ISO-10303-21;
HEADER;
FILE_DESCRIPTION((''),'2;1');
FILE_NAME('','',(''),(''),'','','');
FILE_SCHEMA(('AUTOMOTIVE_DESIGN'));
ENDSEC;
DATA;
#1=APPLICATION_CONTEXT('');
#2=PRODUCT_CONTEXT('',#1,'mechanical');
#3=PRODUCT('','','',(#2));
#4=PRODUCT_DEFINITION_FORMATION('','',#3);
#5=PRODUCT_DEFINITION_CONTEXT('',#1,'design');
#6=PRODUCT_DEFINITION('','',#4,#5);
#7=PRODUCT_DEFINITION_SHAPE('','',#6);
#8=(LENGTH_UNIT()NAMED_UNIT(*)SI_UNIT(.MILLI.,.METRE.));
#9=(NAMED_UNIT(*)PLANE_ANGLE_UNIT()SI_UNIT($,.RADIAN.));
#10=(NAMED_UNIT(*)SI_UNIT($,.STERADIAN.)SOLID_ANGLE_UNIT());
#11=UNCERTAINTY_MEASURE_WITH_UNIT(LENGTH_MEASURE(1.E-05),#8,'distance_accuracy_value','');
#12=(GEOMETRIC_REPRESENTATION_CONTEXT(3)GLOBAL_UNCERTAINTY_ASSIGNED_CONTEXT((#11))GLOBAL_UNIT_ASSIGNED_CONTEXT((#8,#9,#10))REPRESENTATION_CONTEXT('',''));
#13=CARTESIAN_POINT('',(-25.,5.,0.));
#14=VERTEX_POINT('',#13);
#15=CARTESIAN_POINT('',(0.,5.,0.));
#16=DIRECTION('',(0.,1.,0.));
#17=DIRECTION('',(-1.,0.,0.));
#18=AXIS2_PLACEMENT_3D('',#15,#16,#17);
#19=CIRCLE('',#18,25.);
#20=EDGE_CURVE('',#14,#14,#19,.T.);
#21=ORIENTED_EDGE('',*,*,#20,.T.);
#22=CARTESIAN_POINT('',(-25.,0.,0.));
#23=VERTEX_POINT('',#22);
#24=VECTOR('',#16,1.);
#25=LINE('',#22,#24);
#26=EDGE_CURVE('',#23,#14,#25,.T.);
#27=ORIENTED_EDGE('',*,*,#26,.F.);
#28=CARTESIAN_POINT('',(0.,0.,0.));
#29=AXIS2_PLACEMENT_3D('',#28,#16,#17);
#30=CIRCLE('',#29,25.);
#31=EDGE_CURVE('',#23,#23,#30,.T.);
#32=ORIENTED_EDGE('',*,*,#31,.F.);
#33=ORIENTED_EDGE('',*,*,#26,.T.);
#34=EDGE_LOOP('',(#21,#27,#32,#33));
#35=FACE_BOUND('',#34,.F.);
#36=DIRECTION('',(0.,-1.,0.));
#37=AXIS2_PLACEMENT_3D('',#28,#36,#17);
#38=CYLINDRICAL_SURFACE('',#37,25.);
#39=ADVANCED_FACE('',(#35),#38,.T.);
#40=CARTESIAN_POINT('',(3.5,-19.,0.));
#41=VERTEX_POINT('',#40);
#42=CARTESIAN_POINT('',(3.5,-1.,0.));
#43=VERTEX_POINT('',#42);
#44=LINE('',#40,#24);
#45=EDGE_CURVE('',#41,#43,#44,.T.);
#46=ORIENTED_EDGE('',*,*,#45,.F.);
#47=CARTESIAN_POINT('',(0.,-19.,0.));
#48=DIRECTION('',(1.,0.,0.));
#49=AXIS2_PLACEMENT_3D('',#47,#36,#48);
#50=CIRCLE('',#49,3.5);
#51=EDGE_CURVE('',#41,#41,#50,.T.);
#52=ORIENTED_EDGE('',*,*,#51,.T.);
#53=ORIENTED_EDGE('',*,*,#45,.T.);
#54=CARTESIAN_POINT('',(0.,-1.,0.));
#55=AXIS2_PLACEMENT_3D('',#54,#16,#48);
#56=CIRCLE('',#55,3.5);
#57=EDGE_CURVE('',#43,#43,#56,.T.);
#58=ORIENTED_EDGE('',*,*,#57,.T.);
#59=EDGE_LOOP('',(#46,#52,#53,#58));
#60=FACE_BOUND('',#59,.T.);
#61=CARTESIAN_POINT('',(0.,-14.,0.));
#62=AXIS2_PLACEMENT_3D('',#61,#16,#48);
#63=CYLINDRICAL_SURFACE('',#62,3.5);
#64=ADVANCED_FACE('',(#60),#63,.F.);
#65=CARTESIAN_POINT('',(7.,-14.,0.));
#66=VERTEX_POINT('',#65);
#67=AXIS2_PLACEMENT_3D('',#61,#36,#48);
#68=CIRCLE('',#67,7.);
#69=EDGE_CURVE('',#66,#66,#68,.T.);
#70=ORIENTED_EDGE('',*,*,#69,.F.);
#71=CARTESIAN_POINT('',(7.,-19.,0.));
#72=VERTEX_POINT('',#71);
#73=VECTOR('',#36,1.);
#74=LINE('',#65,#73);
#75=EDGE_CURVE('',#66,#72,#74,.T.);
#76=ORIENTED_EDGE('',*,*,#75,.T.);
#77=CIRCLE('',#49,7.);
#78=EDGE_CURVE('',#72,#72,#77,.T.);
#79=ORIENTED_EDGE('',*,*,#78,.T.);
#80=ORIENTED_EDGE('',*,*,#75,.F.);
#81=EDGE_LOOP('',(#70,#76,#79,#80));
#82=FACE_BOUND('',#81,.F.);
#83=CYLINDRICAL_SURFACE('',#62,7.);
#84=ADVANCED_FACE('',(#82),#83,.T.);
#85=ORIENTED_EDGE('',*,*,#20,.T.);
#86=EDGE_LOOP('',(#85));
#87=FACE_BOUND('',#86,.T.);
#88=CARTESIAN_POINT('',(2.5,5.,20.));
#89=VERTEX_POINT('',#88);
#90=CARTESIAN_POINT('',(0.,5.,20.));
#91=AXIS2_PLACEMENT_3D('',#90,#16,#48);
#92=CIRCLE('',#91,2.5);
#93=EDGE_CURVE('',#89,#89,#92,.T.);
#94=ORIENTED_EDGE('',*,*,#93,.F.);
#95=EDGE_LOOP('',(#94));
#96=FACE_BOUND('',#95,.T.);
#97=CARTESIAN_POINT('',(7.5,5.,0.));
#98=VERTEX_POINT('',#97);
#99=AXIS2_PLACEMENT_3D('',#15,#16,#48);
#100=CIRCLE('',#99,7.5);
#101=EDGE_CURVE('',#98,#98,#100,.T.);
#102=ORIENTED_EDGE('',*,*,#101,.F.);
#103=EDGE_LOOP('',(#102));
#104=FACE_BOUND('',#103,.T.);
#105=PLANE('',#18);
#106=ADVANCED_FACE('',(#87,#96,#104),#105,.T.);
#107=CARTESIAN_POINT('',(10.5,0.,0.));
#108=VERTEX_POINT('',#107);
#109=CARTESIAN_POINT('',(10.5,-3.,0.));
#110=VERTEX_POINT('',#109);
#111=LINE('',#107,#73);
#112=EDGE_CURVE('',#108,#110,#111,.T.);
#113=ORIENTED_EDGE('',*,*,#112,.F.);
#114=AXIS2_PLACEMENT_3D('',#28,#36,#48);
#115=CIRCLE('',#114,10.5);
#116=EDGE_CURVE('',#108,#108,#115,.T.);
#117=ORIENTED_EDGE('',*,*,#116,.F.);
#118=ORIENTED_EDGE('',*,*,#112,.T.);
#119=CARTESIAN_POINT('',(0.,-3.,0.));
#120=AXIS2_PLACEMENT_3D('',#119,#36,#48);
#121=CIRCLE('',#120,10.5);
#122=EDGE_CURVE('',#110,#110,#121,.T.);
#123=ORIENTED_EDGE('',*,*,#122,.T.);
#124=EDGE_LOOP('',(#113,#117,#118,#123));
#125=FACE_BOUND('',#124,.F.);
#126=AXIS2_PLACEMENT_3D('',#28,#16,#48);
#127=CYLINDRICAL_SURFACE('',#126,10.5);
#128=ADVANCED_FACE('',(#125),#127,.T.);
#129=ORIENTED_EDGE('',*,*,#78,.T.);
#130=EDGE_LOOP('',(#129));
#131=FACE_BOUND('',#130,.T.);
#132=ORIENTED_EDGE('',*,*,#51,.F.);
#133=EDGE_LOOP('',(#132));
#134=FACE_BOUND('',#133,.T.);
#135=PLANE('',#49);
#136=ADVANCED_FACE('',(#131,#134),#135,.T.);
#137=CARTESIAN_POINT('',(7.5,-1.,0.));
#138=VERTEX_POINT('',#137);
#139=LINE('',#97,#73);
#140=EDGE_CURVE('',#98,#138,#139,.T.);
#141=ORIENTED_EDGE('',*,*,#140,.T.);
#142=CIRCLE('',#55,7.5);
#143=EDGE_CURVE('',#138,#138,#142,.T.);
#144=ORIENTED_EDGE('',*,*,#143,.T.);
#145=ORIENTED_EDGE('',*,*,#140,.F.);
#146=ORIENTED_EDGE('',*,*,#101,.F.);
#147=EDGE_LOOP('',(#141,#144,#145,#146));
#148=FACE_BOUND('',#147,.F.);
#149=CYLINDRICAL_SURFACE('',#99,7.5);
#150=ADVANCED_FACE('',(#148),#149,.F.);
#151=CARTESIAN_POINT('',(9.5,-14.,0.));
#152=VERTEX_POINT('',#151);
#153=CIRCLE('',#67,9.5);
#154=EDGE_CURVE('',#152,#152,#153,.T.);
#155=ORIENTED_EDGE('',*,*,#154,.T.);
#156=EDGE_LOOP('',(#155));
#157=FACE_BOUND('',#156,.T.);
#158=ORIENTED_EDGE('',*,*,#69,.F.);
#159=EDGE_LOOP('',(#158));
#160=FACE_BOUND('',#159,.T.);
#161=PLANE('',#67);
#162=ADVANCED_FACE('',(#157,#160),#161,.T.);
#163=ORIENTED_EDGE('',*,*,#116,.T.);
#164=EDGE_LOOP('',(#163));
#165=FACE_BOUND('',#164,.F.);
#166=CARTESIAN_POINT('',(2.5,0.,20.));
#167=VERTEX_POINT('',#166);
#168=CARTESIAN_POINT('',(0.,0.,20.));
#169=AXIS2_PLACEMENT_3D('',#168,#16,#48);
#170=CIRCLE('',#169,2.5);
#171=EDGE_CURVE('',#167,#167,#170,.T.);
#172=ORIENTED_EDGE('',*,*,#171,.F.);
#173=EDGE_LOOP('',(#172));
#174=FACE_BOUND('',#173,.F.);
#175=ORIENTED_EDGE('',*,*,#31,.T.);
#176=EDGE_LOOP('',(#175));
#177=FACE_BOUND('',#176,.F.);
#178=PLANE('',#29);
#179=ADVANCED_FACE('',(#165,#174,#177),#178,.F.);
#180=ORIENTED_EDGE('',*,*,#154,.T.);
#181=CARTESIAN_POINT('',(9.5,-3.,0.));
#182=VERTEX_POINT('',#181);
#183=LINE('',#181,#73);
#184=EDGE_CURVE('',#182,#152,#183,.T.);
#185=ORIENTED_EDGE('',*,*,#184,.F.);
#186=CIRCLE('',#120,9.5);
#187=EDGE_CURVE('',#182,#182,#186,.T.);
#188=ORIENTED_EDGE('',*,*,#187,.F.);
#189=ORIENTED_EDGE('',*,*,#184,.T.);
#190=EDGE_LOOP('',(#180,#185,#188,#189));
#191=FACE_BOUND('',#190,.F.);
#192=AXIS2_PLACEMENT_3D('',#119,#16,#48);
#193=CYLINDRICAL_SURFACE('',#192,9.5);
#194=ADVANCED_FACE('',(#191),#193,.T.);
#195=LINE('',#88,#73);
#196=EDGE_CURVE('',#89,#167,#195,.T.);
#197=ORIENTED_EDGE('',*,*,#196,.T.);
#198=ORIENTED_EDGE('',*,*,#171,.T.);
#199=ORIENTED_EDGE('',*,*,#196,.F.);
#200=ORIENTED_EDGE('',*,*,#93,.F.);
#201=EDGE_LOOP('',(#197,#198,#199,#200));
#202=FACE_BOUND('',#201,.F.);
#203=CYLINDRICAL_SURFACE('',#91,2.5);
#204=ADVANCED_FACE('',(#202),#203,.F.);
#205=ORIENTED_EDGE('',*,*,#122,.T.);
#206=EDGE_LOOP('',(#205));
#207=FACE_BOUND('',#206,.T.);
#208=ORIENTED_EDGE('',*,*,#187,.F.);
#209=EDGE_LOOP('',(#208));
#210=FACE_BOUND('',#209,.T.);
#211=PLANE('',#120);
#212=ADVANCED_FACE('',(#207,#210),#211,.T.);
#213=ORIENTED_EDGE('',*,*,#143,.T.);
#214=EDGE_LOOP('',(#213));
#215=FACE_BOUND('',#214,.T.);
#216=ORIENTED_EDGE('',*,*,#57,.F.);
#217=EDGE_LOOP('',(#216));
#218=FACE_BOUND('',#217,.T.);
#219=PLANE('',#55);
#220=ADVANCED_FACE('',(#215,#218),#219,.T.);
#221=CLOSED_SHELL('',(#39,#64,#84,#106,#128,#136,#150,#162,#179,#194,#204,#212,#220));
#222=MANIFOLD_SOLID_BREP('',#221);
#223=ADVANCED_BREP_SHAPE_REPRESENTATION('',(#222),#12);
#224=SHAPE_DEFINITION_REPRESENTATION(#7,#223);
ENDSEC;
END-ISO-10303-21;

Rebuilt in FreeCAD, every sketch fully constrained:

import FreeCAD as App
import Part
import Sketcher

V = App.Vector
Q = App.Units.Quantity

doc = App.newDocument("Part")
body = doc.addObject("PartDesign::Body", "Body")

# Sketch on XZ plane
sketch1 = body.newObject("Sketcher::SketchObject", "Sketch")
sketch1.AttachmentSupport = (doc.getObject("XZ_Plane"), [""])
sketch1.MapMode = "FlatFace"
sketch1.addGeometry(Part.Circle(V(0, 0, 0), V(0, 0, 1), 25), False)
sketch1.addConstraint([
    Sketcher.Constraint("Coincident", 0, 3, -1, 1),
    Sketcher.Constraint("Diameter", 0, Q("50 mm")),
])
pad1 = body.newObject("PartDesign::Pad", "Pad")
pad1.Profile = sketch1
pad1.Length = 5
pad1.Reversed = True

# Sketch on XZ plane
sketch2 = body.newObject("Sketcher::SketchObject", "Sketch001")
sketch2.AttachmentSupport = (doc.getObject("XZ_Plane"), [""])
sketch2.MapMode = "FlatFace"
sketch2.AttachmentOffset = App.Placement(V(0, 0, -5), App.Rotation())
sketch2.addGeometry(Part.Circle(V(0, 20, 0), V(0, 0, 1), 2.5), False)
sketch2.addConstraint([
    Sketcher.Constraint("PointOnObject", 0, 3, -2),
    Sketcher.Constraint("Diameter", 0, Q("5 mm")),
    Sketcher.Constraint("DistanceY", -1, 1, 0, 3, Q("20 mm")),
])
pocket1 = body.newObject("PartDesign::Pocket", "Pocket")
pocket1.Profile = sketch2
pocket1.Type = "ThroughAll"
pocket1.Reversed = True

# Sketch on XZ plane
sketch3 = body.newObject("Sketcher::SketchObject", "Sketch002")
sketch3.AttachmentSupport = (doc.getObject("XZ_Plane"), [""])
sketch3.MapMode = "FlatFace"
sketch3.addGeometry(Part.Circle(V(0, 0, 0), V(0, 0, 1), 10), False)
sketch3.addConstraint([
    Sketcher.Constraint("Coincident", 0, 3, -1, 1),
    Sketcher.Constraint("Diameter", 0, Q("21 mm")),
])
pad2 = body.newObject("PartDesign::Pad", "Pad001")
pad2.Profile = sketch3
pad2.Length = 3

# Sketch on XZ plane
sketch4 = body.newObject("Sketcher::SketchObject", "Sketch003")
sketch4.AttachmentSupport = (doc.getObject("XZ_Plane"), [""])
sketch4.MapMode = "FlatFace"
sketch4.AttachmentOffset = App.Placement(V(0, 0, 3), App.Rotation())
sketch4.addGeometry(Part.Circle(V(0, 0, 0), V(0, 0, 1), 10), False)
sketch4.addConstraint([
    Sketcher.Constraint("Coincident", 0, 3, -1, 1),
    Sketcher.Constraint("Diameter", 0, Q("19 mm")),
])
pad3 = body.newObject("PartDesign::Pad", "Pad002")
pad3.Profile = sketch4
pad3.Length = 11

# Sketch on XZ plane
sketch5 = body.newObject("Sketcher::SketchObject", "Sketch004")
sketch5.AttachmentSupport = (doc.getObject("XZ_Plane"), [""])
sketch5.MapMode = "FlatFace"
sketch5.AttachmentOffset = App.Placement(V(0, 0, -5), App.Rotation())
sketch5.addGeometry(Part.Circle(V(0, 0, 0), V(0, 0, 1), 8), False)
sketch5.addConstraint([
    Sketcher.Constraint("Coincident", 0, 3, -1, 1),
    Sketcher.Constraint("Diameter", 0, Q("15 mm")),
])
pocket2 = body.newObject("PartDesign::Pocket", "Pocket001")
pocket2.Profile = sketch5
pocket2.Length = 6
pocket2.Reversed = True

# Sketch on XZ plane
sketch6 = body.newObject("Sketcher::SketchObject", "Sketch005")
sketch6.AttachmentSupport = (doc.getObject("XZ_Plane"), [""])
sketch6.MapMode = "FlatFace"
sketch6.AttachmentOffset = App.Placement(V(0, 0, 1), App.Rotation())
sketch6.addGeometry(Part.Circle(V(0, 0, 0), V(0, 0, 1), 3.5), False)
sketch6.addConstraint([
    Sketcher.Constraint("Coincident", 0, 3, -1, 1),
    Sketcher.Constraint("Diameter", 0, Q("7 mm")),
])
pocket3 = body.newObject("PartDesign::Pocket", "Pocket002")
pocket3.Profile = sketch6
pocket3.Type = "ThroughAll"
pocket3.Reversed = True

# Sketch on XZ plane
sketch7 = body.newObject("Sketcher::SketchObject", "Sketch006")
sketch7.AttachmentSupport = (doc.getObject("XZ_Plane"), [""])
sketch7.MapMode = "FlatFace"
sketch7.AttachmentOffset = App.Placement(V(0, 0, 14), App.Rotation())
sketch7.addGeometry([
    Part.Circle(V(0, 0, 0), V(0, 0, 1), 7),
    Part.Circle(V(0, 0, 0), V(0, 0, 1), 3.5),
], False)
sketch7.addConstraint([
    Sketcher.Constraint("Coincident", 0, 3, -1, 1),
    Sketcher.Constraint("Coincident", 1, 3, -1, 1),
    Sketcher.Constraint("Diameter", 0, Q("14 mm")),
    Sketcher.Constraint("Diameter", 1, Q("7 mm")),
])
pad4 = body.newObject("PartDesign::Pad", "Pad003")
pad4.Profile = sketch7
pad4.Length = 5

doc.recompute()
